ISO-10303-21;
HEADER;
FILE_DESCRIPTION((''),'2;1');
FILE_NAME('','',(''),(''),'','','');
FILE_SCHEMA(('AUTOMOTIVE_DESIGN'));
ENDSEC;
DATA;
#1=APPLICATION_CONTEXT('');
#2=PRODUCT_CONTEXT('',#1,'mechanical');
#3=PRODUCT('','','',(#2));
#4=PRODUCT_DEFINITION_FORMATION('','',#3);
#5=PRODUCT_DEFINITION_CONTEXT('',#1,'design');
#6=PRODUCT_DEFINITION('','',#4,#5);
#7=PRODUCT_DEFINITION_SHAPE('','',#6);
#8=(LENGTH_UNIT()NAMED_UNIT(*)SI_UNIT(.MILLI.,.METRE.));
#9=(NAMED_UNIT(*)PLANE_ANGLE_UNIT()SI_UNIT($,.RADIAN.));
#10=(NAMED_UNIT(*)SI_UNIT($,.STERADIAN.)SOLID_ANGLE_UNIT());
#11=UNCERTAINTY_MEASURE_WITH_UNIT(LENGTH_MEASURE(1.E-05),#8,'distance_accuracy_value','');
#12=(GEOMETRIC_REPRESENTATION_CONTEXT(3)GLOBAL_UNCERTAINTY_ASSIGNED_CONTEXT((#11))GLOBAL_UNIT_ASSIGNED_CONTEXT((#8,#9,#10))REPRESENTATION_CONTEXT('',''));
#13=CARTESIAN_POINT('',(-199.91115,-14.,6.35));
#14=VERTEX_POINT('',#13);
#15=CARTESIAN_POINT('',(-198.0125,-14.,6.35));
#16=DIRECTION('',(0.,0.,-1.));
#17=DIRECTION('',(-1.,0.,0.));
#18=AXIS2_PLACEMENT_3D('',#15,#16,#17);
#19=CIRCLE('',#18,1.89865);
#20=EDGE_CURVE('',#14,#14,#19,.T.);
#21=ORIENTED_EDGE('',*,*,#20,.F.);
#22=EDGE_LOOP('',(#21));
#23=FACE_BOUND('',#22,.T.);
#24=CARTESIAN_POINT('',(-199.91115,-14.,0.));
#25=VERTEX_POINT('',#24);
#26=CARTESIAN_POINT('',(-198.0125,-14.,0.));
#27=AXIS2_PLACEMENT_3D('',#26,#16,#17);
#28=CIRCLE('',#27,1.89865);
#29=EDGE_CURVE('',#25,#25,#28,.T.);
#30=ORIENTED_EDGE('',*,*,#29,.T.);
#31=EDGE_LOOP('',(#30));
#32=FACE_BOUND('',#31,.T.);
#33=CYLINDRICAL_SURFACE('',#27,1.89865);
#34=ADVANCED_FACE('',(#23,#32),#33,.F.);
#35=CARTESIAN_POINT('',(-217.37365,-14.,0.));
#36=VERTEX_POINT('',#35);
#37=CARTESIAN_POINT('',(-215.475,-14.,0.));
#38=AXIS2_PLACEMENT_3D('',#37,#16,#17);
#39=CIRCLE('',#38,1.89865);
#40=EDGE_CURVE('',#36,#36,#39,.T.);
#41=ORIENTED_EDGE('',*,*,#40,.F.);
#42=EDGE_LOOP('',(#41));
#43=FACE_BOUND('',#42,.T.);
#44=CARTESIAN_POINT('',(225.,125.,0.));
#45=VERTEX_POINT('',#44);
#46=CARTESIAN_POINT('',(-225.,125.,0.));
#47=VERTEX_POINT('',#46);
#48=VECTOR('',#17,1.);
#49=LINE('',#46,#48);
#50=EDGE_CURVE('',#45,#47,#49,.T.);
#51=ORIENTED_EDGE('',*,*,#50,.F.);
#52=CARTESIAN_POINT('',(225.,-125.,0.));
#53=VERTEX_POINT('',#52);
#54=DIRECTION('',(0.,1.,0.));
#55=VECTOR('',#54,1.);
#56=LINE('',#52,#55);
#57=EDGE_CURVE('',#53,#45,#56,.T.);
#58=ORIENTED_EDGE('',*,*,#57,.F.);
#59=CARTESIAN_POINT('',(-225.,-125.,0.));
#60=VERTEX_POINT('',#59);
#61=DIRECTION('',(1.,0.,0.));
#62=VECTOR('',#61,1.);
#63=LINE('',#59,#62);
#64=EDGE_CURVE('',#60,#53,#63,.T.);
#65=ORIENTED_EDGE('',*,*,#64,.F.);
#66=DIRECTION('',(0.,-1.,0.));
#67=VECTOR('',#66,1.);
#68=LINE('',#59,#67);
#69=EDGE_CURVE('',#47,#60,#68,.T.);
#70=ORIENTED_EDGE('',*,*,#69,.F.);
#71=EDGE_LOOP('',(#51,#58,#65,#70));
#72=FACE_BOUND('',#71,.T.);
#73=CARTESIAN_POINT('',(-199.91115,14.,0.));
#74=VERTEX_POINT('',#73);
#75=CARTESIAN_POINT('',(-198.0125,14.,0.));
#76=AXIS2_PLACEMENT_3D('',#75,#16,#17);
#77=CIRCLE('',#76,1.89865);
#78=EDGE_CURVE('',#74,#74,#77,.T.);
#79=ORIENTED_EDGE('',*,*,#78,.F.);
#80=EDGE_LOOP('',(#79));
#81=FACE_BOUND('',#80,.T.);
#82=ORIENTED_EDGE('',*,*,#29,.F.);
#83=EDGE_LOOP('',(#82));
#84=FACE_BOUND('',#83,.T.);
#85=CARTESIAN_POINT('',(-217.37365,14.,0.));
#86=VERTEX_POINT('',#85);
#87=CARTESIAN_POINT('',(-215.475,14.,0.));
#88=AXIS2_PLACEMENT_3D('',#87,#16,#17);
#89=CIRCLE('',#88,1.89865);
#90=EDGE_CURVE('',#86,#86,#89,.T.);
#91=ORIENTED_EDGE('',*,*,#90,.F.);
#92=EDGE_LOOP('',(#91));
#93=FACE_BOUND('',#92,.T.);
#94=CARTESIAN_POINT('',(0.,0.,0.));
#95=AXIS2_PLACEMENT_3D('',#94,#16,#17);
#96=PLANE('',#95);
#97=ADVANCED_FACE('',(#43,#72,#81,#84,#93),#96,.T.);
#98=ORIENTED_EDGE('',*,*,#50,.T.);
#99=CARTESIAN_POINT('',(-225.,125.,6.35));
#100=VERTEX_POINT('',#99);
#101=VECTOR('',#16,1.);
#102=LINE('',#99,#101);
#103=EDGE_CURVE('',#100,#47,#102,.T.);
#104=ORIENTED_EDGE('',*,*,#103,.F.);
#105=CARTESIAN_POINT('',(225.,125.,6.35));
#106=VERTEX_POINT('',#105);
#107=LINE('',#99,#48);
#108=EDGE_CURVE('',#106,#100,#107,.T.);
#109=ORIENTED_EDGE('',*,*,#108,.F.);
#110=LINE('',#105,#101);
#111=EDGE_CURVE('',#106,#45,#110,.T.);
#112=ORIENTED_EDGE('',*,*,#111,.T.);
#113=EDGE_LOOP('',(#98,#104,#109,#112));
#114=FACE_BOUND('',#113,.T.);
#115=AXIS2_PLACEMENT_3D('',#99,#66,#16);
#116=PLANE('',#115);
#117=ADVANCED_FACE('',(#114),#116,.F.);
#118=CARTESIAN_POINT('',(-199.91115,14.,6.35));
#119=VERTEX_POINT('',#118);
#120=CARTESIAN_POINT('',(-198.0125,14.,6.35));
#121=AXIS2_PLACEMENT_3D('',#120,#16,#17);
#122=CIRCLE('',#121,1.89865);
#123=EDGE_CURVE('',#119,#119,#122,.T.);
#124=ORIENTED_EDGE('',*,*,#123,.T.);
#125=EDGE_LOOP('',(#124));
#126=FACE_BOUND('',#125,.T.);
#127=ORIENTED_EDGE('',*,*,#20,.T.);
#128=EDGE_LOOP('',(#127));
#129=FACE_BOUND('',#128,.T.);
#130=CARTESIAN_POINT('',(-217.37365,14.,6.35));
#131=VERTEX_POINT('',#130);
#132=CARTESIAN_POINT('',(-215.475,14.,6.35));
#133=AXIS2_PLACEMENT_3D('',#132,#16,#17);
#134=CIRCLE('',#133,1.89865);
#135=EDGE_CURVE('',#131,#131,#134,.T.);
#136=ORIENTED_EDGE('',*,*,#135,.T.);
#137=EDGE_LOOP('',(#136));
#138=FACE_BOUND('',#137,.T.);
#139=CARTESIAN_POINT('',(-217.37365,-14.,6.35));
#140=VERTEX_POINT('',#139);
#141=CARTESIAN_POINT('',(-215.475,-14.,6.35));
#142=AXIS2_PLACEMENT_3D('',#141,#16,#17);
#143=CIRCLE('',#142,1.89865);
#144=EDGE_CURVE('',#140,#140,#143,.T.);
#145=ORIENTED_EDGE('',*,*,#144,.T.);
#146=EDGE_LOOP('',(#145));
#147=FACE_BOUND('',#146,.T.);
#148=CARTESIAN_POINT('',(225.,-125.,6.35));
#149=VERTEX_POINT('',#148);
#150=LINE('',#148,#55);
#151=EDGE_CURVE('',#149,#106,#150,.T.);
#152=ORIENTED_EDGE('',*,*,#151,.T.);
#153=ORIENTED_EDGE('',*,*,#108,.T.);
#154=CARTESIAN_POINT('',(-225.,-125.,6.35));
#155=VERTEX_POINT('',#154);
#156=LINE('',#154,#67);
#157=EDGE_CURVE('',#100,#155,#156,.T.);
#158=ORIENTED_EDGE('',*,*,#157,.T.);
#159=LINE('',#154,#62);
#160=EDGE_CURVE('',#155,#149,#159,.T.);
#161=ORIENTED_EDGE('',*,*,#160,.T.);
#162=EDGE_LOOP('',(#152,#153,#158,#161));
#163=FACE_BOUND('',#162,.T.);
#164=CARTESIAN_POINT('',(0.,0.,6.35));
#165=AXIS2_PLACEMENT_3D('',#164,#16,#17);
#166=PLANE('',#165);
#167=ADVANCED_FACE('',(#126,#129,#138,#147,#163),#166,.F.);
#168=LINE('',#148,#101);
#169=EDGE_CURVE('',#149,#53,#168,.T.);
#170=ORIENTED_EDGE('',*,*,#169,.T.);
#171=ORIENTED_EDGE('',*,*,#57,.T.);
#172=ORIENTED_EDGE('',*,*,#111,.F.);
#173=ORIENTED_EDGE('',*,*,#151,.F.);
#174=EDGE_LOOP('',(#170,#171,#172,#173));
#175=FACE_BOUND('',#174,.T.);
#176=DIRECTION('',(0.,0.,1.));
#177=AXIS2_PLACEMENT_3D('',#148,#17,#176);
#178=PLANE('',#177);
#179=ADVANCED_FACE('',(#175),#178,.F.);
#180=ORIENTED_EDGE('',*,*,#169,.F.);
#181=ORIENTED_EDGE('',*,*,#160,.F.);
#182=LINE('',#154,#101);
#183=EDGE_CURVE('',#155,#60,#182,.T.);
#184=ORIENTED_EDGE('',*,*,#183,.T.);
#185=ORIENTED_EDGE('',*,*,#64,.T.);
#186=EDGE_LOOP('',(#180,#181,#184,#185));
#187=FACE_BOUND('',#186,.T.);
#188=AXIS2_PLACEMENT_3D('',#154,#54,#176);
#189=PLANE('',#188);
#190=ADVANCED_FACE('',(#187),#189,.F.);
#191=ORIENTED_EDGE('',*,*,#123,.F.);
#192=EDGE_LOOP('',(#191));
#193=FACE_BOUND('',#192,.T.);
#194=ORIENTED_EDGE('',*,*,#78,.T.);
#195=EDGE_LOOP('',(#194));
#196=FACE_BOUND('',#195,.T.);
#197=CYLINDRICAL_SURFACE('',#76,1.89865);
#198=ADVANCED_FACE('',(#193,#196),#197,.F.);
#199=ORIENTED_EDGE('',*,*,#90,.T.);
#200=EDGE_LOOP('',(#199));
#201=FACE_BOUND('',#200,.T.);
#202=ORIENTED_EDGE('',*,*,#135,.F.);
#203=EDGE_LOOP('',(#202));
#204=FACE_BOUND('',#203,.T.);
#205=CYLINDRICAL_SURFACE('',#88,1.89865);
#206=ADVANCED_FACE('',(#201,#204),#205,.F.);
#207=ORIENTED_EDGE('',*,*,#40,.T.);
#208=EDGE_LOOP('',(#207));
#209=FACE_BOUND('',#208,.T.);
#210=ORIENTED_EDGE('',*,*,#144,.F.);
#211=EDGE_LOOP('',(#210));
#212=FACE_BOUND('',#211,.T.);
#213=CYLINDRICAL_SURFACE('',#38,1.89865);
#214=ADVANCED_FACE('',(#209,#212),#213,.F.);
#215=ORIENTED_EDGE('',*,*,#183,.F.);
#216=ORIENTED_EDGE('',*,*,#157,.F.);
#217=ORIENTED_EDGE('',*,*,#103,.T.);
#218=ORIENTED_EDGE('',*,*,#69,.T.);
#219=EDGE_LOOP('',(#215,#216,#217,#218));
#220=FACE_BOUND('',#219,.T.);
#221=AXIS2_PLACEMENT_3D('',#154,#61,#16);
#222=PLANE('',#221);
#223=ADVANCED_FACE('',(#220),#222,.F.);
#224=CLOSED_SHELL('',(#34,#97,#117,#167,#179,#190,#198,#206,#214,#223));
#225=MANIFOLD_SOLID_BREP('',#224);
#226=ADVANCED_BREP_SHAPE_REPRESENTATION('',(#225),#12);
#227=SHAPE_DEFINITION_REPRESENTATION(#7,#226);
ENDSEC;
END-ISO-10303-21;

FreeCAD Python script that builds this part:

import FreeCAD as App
import Part
import Sketcher

V = App.Vector
Q = App.Units.Quantity

doc = App.newDocument("Part")
body = doc.addObject("PartDesign::Body", "Body")

sketch1 = doc.addObject("Sketcher::SketchObject", "Sketch")
body.addObject(sketch1)
sketch1.AttachmentSupport = (doc.XY_Plane, [""])
sketch1.MapMode = "FlatFace"
sketch1.addGeometry(Part.LineSegment(V(-225, 125, 0), V(-225, -125, 0)), False)
sketch1.addGeometry(Part.LineSegment(V(-225, -125, 0), V(225, -125, 0)), False)
sketch1.addGeometry(Part.LineSegment(V(225, -125, 0), V(225, 125, 0)), False)
sketch1.addGeometry(Part.LineSegment(V(225, 125, 0), V(-225, 125, 0)), False)
sketch1.addConstraint(Sketcher.Constraint("Coincident", 0, 2, 1, 1))
sketch1.addConstraint(Sketcher.Constraint("Coincident", 1, 2, 2, 1))
sketch1.addConstraint(Sketcher.Constraint("Coincident", 2, 2, 3, 1))
sketch1.addConstraint(Sketcher.Constraint("Coincident", 3, 2, 0, 1))
sketch1.addConstraint(Sketcher.Constraint("Vertical", 0))
sketch1.addConstraint(Sketcher.Constraint("Horizontal", 1))
sketch1.addConstraint(Sketcher.Constraint("Vertical", 2))
sketch1.addConstraint(Sketcher.Constraint("Horizontal", 3))
sketch1.addConstraint(Sketcher.Constraint("Symmetric", 0, 2, 2, 2, -1, 1))
sketch1.addConstraint(Sketcher.Constraint("DistanceX", 1, 1, 1, 2, Q("450 mm")))
sketch1.addConstraint(Sketcher.Constraint("DistanceY", 0, 2, 0, 1, Q("250 mm")))
pad1 = doc.addObject("PartDesign::Pad", "Pad")
body.addObject(pad1)
pad1.Profile = sketch1
pad1.Length = 6.35

sketch2 = doc.addObject("Sketcher::SketchObject", "Sketch001")
body.addObject(sketch2)
sketch2.AttachmentSupport = (doc.XY_Plane, [""])
sketch2.MapMode = "FlatFace"
sketch2.addGeometry(Part.Circle(V(-198, 14, 0), V(0, 0, 1), 1.9), False)
sketch2.addGeometry(Part.Circle(V(-215.5, 14, 0), V(0, 0, 1), 1.9), False)
sketch2.addGeometry(Part.Circle(V(-198, -14, 0), V(0, 0, 1), 1.9), False)
sketch2.addGeometry(Part.Circle(V(-215.5, -14, 0), V(0, 0, 1), 1.9), False)
sketch2.addConstraint(Sketcher.Constraint("Equal", 0, 1))
sketch2.addConstraint(Sketcher.Constraint("Equal", 1, 2))
sketch2.addConstraint(Sketcher.Constraint("Equal", 2, 3))
sketch2.addConstraint(Sketcher.Constraint("Symmetric", 0, 3, 2, 3, -1))
sketch2.addConstraint(Sketcher.Constraint("Symmetric", 1, 3, 3, 3, -1))
sketch2.addConstraint(Sketcher.Constraint("Horizontal", 0, 3, 1, 3))
sketch2.addConstraint(Sketcher.Constraint("DistanceY", -1, 1, 0, 3, Q("14 mm")))
sketch2.addConstraint(Sketcher.Constraint("Diameter", 0, Q("3.7973 mm")))
sketch2.addConstraint(Sketcher.Constraint("DistanceX", 1, 3, -1, 1, Q("215.475 mm")))
sketch2.addConstraint(Sketcher.Constraint("DistanceX", 0, 3, -1, 1, Q("198.0125 mm")))
doc.recompute()
hole = doc.addObject("PartDesign::Hole", "Hole")
body.addObject(hole)
hole.Profile = sketch2
hole.ThreadType = "None"
hole.Diameter = 3.7973
hole.DepthType = "ThroughAll"
hole.Reversed = True

doc.recompute()
